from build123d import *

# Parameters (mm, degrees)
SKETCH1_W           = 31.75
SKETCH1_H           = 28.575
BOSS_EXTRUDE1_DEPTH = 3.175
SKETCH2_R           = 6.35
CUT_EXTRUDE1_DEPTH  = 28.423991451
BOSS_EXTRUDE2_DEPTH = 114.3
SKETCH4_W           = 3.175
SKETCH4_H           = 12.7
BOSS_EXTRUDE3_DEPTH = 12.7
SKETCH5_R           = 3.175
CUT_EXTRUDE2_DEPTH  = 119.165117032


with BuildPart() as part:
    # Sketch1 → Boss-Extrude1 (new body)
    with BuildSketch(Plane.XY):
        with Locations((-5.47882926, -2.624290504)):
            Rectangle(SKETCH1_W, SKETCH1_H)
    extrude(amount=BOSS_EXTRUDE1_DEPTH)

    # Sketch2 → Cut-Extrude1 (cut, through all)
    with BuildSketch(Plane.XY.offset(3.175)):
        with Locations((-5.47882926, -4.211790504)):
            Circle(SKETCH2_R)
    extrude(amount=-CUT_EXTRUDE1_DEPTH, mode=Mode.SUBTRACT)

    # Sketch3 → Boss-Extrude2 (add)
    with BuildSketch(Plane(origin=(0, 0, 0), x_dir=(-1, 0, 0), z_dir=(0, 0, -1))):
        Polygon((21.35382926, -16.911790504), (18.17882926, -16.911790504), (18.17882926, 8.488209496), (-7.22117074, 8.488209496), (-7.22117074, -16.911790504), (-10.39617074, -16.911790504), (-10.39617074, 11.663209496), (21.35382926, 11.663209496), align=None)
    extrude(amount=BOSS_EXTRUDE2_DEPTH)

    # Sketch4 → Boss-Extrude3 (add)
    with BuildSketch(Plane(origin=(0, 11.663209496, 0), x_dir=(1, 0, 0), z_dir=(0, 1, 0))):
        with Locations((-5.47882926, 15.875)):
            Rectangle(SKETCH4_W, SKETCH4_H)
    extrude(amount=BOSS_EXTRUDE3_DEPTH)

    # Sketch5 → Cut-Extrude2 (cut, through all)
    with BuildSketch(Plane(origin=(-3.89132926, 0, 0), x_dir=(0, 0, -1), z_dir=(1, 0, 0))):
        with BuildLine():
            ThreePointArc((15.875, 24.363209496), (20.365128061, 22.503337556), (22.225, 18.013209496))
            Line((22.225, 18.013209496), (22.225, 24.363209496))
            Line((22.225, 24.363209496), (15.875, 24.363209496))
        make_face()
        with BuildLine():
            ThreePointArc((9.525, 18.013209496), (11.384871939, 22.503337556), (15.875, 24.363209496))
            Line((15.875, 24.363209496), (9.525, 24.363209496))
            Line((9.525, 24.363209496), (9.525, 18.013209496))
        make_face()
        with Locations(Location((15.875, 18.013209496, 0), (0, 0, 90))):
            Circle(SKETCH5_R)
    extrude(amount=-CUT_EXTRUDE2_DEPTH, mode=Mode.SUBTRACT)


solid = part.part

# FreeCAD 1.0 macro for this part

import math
import FreeCAD as App
import Part
import Sketcher
from FreeCAD import Vector
Q = App.Units.Quantity


def add_polygon(sketch, points):
    """Adds a closed chain of lines whose ends are joined by coincident constraints."""
    first, n = sketch.GeometryCount, len(points)
    for a, b in zip(points, points[1:] + points[:1]):
        sketch.addGeometry(Part.LineSegment(App.Vector(*a, 0), App.Vector(*b, 0)), False)
    for i in range(n):
        sketch.addConstraint(Sketcher.Constraint("Coincident", first + i, 2, first + (i + 1) % n, 1))

doc = App.newDocument("Part")
body = doc.addObject("PartDesign::Body", "Body")

# Sketch on XY plane
sketch1 = body.newObject("Sketcher::SketchObject", "Sketch")
sketch1.AttachmentSupport = (doc.getObject("XY_Plane"), [""])
sketch1.MapMode = "FlatFace"
add_polygon(sketch1, [(-21, 12), (-21, -17), (10, -17), (10, 12)])  # lines 0-3
sketch1.addConstraint([
    Sketcher.Constraint("Vertical", 0),
    Sketcher.Constraint("Horizontal", 1),
    Sketcher.Constraint("Vertical", 2),
    Sketcher.Constraint("Horizontal", 3),
    Sketcher.Constraint("DistanceX", 1, 1, 1, 2, Q("1.25 in")),
    Sketcher.Constraint("DistanceY", 0, 2, 0, 1, Q("1.125 in")),
    Sketcher.Constraint("DistanceX", 0, 2, -1, 1, 21.353829),
    Sketcher.Constraint("DistanceY", 0, 2, -1, 1, 16.911791),
])
pad1 = body.newObject("PartDesign::Pad", "Pad")
pad1.Profile = sketch1
pad1.Length = Q("0.125 in")

# Sketch on XY plane
sketch2 = body.newObject("Sketcher::SketchObject", "Sketch001")
sketch2.AttachmentSupport = (doc.getObject("XY_Plane"), [""])
sketch2.MapMode = "FlatFace"
sketch2.AttachmentOffset = App.Placement(Vector(0, 0, 0.125 * 25.4), App.Rotation())
sketch2.addGeometry(Part.Circle(Vector(-5, -4, 0), Vector(0, 0, 1), 6), False)
sketch2.addConstraint([
    Sketcher.Constraint("Diameter", 0, Q("0.5 in")),
    Sketcher.Constraint("DistanceX", 0, 3, -1, 1, 5.478829),
    Sketcher.Constraint("DistanceY", 0, 3, -1, 1, 4.211791),
])
pocket1 = body.newObject("PartDesign::Pocket", "Pocket")
pocket1.Profile = sketch2
pocket1.Type = "ThroughAll"

# Sketch on XY plane
sketch3 = body.newObject("Sketcher::SketchObject", "Sketch002")
sketch3.AttachmentSupport = (doc.getObject("XY_Plane"), [""])
sketch3.MapMode = "FlatFace"
add_polygon(sketch3, [(-18.2, -16.9), (-21.4, -16.9), (-21.4, 11.7), (10.4, 11.7), (10.4, -16.9), (7.2, -16.9), (7.2, 8.5), (-18.2, 8.5)])  # lines 0-7
sketch3.addConstraint([
    Sketcher.Constraint("Horizontal", 0),
    Sketcher.Constraint("Vertical", 1),
    Sketcher.Constraint("Horizontal", 2),
    Sketcher.Constraint("Vertical", 3),
    Sketcher.Constraint("Horizontal", 4),
    Sketcher.Constraint("Vertical", 5),
    Sketcher.Constraint("Horizontal", 6),
    Sketcher.Constraint("Vertical", 7),
    Sketcher.Constraint("Horizontal", 0, 2, 3, 2),
    Sketcher.Constraint("Equal", 0, 4),
    Sketcher.Constraint("Equal", 6, 5),
    Sketcher.Constraint("DistanceX", 6, 2, 6, 1, Q("1 in")),
    Sketcher.Constraint("DistanceX", 2, 1, 2, 2, Q("1.25 in")),
    Sketcher.Constraint("DistanceY", 1, 1, 1, 2, Q("1.125 in")),
    Sketcher.Constraint("DistanceX", 0, 2, -1, 1, 21.353829),
    Sketcher.Constraint("DistanceY", 0, 2, -1, 1, 16.911791),
])
pad2 = body.newObject("PartDesign::Pad", "Pad001")
pad2.Profile = sketch3
pad2.Length = Q("4.5 in")
pad2.Reversed = True

# Sketch on XZ plane
sketch4 = body.newObject("Sketcher::SketchObject", "Sketch003")
sketch4.AttachmentSupport = (doc.getObject("XZ_Plane"), [""])
sketch4.MapMode = "FlatFace"
sketch4.AttachmentOffset = App.Placement(Vector(0, 0, -11.663209), App.Rotation())
add_polygon(sketch4, [(-7.1, -22.2), (-7.1, -9.5), (-3.9, -9.5), (-3.9, -22.2)])  # lines 0-3
sketch4.addConstraint([
    Sketcher.Constraint("Vertical", 0),
    Sketcher.Constraint("Horizontal", 1),
    Sketcher.Constraint("Vertical", 2),
    Sketcher.Constraint("Horizontal", 3),
    Sketcher.Constraint("DistanceY", 0, 1, 0, 2, Q("0.5 in")),
    Sketcher.Constraint("DistanceX", 1, 1, 1, 2, Q("0.125 in")),
    Sketcher.Constraint("DistanceY", 0, 2, -1, 1, Q("0.375 in")),
    Sketcher.Constraint("DistanceX", 0, 2, -1, 1, 7.066329),
])
pad3 = body.newObject("PartDesign::Pad", "Pad002")
pad3.Profile = sketch4
pad3.Length = Q("0.5 in")
pad3.Reversed = True

# Sketch on YZ plane
sketch5 = body.newObject("Sketcher::SketchObject", "Sketch004")
sketch5.AttachmentSupport = (doc.getObject("YZ_Plane"), [""])
sketch5.MapMode = "FlatFace"
sketch5.AttachmentOffset = App.Placement(Vector(0, 0, -3.891329), App.Rotation())
sketch5.addGeometry([
    Part.ArcOfCircle(Part.Circle(Vector(18, -15.9, 0), Vector(0, 0, 1), 6.3), math.radians(-90), math.radians(0)),  # 0
    Part.LineSegment(Vector(18, -22.2, 0), Vector(24.4, -22.2, 0)),  # 1
    Part.LineSegment(Vector(24.4, -22.2, 0), Vector(24.4, -15.9, 0)),  # 2
    Part.ArcOfCircle(Part.Circle(Vector(18, -15.9, 0), Vector(0, 0, 1), 6.3), math.radians(0), math.radians(90)),  # 3
    Part.LineSegment(Vector(24.4, -15.9, 0), Vector(24.4, -9.5, 0)),  # 4
    Part.LineSegment(Vector(24.4, -9.5, 0), Vector(18, -9.5, 0)),  # 5
    Part.Circle(Vector(18, -15.9, 0), Vector(0, 0, 1), 3.2),  # 6
], False)
sketch5.addConstraint([
    Sketcher.Constraint("Tangent", 0, 1, 1, 1),
    Sketcher.Constraint("Coincident", 1, 2, 2, 1),
    Sketcher.Constraint("Tangent", 2, 2, 0, 2),
    Sketcher.Constraint("Tangent", 3, 1, 4, 1),
    Sketcher.Constraint("Coincident", 4, 2, 5, 1),
    Sketcher.Constraint("Tangent", 5, 2, 3, 2),
    Sketcher.Constraint("Horizontal", 1),
    Sketcher.Constraint("Vertical", 2),
    Sketcher.Constraint("Vertical", 4),
    Sketcher.Constraint("Horizontal", 5),
    Sketcher.Constraint("Coincident", 3, 3, 0, 3),
    Sketcher.Constraint("Coincident", 6, 3, 0, 3),
    Sketcher.Constraint("Equal", 0, 3),
    Sketcher.Constraint("Diameter", 6, Q("0.25 in")),
    Sketcher.Constraint("Radius", 0, Q("0.25 in")),
    Sketcher.Constraint("DistanceY", 0, 3, -1, 1, Q("0.625 in")),
    Sketcher.Constraint("DistanceX", -1, 1, 0, 3, 18.013209),
])
pocket2 = body.newObject("PartDesign::Pocket", "Pocket001")
pocket2.Profile = sketch5
pocket2.Type = "ThroughAll"

doc.recompute()
